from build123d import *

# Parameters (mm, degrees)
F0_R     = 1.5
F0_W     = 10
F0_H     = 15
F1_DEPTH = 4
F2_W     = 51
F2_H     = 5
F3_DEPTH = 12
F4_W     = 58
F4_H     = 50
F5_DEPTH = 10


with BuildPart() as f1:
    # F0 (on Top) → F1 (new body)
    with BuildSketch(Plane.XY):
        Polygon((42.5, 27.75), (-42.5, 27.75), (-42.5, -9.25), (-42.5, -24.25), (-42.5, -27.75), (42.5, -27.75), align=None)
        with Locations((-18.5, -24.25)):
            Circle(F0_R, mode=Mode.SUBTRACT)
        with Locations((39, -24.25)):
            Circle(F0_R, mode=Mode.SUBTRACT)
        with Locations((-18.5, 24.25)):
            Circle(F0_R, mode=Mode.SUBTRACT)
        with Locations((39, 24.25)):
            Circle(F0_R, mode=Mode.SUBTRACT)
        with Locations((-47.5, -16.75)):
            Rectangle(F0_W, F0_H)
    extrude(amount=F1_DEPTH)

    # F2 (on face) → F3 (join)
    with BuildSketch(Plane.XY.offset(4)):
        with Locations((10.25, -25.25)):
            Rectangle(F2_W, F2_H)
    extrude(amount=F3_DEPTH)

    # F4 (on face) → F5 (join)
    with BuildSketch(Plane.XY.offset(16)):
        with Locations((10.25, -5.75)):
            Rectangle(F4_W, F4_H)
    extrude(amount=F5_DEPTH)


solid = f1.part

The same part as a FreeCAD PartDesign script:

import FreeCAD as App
import Part
import Sketcher
from FreeCAD import Vector


def add_polygon(sketch, points):
    """Adds a closed chain of lines whose ends are joined by coincident constraints."""
    first, n = sketch.GeometryCount, len(points)
    for a, b in zip(points, points[1:] + points[:1]):
        sketch.addGeometry(Part.LineSegment(App.Vector(*a, 0), App.Vector(*b, 0)), False)
    for i in range(n):
        sketch.addConstraint(Sketcher.Constraint("Coincident", first + i, 2, first + (i + 1) % n, 1))

doc = App.newDocument("Part")
body = doc.addObject("PartDesign::Body", "Body")

sketch1 = body.newObject("Sketcher::SketchObject", "Sketch")
sketch1.AttachmentSupport = (doc.getObject("XY_Plane"), [""])
sketch1.MapMode = "FlatFace"
add_polygon(sketch1, [(42.5, 27.8), (-42.5, 27.8), (-42.5, -9.2), (-52.5, -9.2), (-52.5, -24.2), (-42.5, -24.2), (-42.5, -27.8), (42.5, -27.8)])
sketch1.addGeometry(Part.Circle(Vector(-18.5, -24.2, 0), Vector(0, 0, 1), 1.5), False)
sketch1.addGeometry(Part.Circle(Vector(39, -24.2, 0), Vector(0, 0, 1), 1.5), False)
sketch1.addGeometry(Part.Circle(Vector(-18.5, 24.2, 0), Vector(0, 0, 1), 1.5), False)
sketch1.addGeometry(Part.Circle(Vector(39, 24.2, 0), Vector(0, 0, 1), 1.5), False)
sketch1.addConstraint([
    Sketcher.Constraint("Horizontal", 0),
    Sketcher.Constraint("Vertical", 1),
    Sketcher.Constraint("Horizontal", 2),
    Sketcher.Constraint("Vertical", 3),
    Sketcher.Constraint("Horizontal", 4),
    Sketcher.Constraint("Vertical", 5),
    Sketcher.Constraint("Horizontal", 6),
    Sketcher.Constraint("Vertical", 7),
    Sketcher.Constraint("Equal", 8, 9),
    Sketcher.Constraint("Equal", 9, 10),
    Sketcher.Constraint("Equal", 10, 11),
    Sketcher.Constraint("Symmetric", 0, 2, 6, 2, -1, 1),
    Sketcher.Constraint("Symmetric", 8, 3, 10, 3, -1),
    Sketcher.Constraint("Symmetric", 9, 3, 11, 3, -1),
    Sketcher.Constraint("Horizontal", 8, 3, 9, 3),
    Sketcher.Constraint("Horizontal", 9, 3, 3, 2),
    Sketcher.Constraint("Vertical", 1, 2, 4, 2),
    Sketcher.Constraint("Diameter", 8, 3.0),
    Sketcher.Constraint("DistanceX", 0, 2, 0, 1, 85.0),
    Sketcher.Constraint("DistanceX", 2, 2, 2, 1, 10.0),
    Sketcher.Constraint("DistanceY", 1, 2, 1, 1, 37.0),
    Sketcher.Constraint("DistanceY", 3, 2, 3, 1, 15.0),
    Sketcher.Constraint("DistanceY", 5, 2, 5, 1, 3.5),
    Sketcher.Constraint("DistanceX", -1, 1, 9, 3, 39.0),
    Sketcher.Constraint("DistanceX", 0, 2, 10, 3, 24.0),
])
pad1 = body.newObject("PartDesign::Pad", "Pad")
pad1.Profile = sketch1
pad1.Length = 4

sketch2 = body.newObject("Sketcher::SketchObject", "Sketch001")
sketch2.AttachmentSupport = (doc.getObject("XY_Plane"), [""])
sketch2.MapMode = "FlatFace"
sketch2.AttachmentOffset = App.Placement(Vector(0, 0, 4), App.Rotation())
add_polygon(sketch2, [(-15, -23), (-15, -28), (36, -28), (36, -23)])
sketch2.addConstraint([
    Sketcher.Constraint("Vertical", 0),
    Sketcher.Constraint("Horizontal", 1),
    Sketcher.Constraint("Vertical", 2),
    Sketcher.Constraint("Horizontal", 3),
    Sketcher.Constraint("DistanceX", 1, 1, 1, 2, 51.0),
    Sketcher.Constraint("DistanceY", 0, 2, 0, 1, 5.0),
    Sketcher.Constraint("DistanceX", 0, 2, -1, 1, 15.25),
    Sketcher.Constraint("DistanceY", 0, 2, -1, 1, 27.75),
])
pad2 = body.newObject("PartDesign::Pad", "Pad001")
pad2.Profile = sketch2
pad2.Length = 12

sketch3 = body.newObject("Sketcher::SketchObject", "Sketch002")
sketch3.AttachmentSupport = (doc.getObject("XY_Plane"), [""])
sketch3.MapMode = "FlatFace"
sketch3.AttachmentOffset = App.Placement(Vector(0, 0, 16), App.Rotation())
add_polygon(sketch3, [(-19, 19), (-19, -31), (39, -31), (39, 19)])
sketch3.addConstraint([
    Sketcher.Constraint("Vertical", 0),
    Sketcher.Constraint("Horizontal", 1),
    Sketcher.Constraint("Vertical", 2),
    Sketcher.Constraint("Horizontal", 3),
    Sketcher.Constraint("DistanceX", 1, 1, 1, 2, 58.0),
    Sketcher.Constraint("DistanceY", 0, 2, 0, 1, 50.0),
    Sketcher.Constraint("DistanceX", 0, 2, -1, 1, 18.75),
    Sketcher.Constraint("DistanceY", 0, 2, -1, 1, 30.75),
])
pad3 = body.newObject("PartDesign::Pad", "Pad002")
pad3.Profile = sketch3
pad3.Length = 10

doc.recompute()
